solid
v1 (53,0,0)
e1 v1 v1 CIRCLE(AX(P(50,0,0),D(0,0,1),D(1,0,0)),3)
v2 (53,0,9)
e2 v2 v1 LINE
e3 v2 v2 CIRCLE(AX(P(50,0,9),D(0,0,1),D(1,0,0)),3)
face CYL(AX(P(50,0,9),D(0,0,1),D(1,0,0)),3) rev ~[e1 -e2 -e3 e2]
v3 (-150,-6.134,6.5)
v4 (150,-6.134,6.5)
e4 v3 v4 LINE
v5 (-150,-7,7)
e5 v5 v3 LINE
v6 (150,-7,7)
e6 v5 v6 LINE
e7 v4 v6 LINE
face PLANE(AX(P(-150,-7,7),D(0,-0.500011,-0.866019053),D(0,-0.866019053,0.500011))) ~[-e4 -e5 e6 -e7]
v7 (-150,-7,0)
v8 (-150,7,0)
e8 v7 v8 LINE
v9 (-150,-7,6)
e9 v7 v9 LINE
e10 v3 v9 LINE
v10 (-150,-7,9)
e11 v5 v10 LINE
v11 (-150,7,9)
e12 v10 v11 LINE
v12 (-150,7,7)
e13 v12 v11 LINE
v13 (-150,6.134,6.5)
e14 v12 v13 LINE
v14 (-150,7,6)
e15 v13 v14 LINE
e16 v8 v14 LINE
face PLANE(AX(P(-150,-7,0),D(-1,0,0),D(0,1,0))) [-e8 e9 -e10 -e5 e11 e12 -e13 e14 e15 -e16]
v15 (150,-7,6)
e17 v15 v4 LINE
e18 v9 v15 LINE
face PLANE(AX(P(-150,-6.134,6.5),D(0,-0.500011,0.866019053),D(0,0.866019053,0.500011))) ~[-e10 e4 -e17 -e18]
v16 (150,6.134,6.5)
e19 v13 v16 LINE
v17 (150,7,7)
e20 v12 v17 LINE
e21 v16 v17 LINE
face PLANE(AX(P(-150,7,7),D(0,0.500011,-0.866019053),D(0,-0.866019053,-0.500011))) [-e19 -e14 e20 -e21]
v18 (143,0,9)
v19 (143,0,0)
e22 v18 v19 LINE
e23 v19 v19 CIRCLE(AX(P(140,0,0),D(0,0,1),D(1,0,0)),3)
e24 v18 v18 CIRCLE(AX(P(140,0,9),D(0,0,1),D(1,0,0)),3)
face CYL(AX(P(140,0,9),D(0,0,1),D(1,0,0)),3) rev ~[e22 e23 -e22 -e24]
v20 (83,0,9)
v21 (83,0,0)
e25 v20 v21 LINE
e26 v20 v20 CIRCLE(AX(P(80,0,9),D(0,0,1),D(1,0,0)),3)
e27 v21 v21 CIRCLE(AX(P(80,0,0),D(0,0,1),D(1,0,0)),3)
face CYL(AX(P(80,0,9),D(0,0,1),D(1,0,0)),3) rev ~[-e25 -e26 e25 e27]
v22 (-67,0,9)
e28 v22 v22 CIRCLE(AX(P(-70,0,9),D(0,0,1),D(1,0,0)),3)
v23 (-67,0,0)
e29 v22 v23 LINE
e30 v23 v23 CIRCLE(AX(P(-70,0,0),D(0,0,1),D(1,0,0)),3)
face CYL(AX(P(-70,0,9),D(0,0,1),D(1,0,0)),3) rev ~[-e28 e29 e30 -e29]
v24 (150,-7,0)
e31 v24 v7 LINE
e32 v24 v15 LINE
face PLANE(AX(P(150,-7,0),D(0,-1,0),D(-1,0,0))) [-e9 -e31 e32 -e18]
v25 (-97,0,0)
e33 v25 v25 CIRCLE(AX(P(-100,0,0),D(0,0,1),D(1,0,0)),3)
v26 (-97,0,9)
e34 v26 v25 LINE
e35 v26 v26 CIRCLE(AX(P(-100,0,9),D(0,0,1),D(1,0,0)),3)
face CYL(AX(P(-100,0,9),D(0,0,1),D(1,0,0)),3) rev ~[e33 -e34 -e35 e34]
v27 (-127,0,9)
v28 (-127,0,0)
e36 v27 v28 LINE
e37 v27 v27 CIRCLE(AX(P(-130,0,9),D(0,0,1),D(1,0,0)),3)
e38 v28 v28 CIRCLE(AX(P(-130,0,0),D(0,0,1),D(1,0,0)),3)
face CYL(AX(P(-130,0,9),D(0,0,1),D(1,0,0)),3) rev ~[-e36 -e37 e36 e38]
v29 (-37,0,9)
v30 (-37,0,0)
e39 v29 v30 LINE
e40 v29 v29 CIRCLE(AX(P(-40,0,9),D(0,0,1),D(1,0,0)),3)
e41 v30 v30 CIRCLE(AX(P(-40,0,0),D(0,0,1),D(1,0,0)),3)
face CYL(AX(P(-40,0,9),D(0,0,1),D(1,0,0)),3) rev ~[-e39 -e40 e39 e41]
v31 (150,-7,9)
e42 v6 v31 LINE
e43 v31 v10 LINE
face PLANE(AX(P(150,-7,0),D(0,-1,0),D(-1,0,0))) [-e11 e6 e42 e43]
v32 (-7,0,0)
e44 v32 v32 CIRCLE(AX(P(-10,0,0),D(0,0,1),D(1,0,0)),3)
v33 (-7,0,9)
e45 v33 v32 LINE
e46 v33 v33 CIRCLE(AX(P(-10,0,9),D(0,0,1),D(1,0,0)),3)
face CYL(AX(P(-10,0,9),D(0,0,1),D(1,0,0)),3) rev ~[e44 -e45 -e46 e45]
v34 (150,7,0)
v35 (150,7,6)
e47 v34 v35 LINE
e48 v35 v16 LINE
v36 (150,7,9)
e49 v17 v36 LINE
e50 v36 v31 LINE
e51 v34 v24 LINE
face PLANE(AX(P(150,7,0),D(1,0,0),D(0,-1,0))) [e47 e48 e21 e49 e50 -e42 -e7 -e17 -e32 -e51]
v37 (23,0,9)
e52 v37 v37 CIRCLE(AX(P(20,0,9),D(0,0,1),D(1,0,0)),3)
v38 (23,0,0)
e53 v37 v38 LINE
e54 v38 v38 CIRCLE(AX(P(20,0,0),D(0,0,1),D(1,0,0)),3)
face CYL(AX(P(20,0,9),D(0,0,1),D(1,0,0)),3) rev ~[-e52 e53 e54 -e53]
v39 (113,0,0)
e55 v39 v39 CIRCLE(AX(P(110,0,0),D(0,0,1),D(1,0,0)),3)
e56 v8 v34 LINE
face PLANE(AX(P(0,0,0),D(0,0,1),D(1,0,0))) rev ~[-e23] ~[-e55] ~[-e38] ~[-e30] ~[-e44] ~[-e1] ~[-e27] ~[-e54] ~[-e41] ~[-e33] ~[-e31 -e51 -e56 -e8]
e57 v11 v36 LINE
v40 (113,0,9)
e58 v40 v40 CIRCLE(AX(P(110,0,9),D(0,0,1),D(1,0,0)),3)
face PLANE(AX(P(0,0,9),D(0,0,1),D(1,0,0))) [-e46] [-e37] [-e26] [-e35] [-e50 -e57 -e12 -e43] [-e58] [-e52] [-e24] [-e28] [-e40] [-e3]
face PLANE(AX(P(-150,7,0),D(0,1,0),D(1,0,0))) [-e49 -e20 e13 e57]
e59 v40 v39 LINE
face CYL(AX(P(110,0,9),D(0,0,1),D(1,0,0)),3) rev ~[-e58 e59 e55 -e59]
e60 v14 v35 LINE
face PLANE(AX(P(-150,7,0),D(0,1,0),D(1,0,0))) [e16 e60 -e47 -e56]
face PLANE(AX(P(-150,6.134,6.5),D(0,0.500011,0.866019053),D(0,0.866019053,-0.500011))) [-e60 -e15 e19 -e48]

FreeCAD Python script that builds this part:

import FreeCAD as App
import Part
import Sketcher

doc = App.newDocument("Part")
body = doc.addObject("PartDesign::Body", "Body")

sketch1 = body.newObject("Sketcher::SketchObject", "Sketch")
sketch1.AttachmentSupport = (doc.getObject("XY_Plane"), [""])
sketch1.MapMode = "FlatFace"
sketch1.addGeometry([
    Part.LineSegment(App.Vector(-150, -7, 0), App.Vector(150, -7, 0)),
    Part.LineSegment(App.Vector(150, -7, 0), App.Vector(150, 7, 0)),
    Part.LineSegment(App.Vector(150, 7, 0), App.Vector(-150, 7, 0)),
    Part.LineSegment(App.Vector(-150, 7, 0), App.Vector(-150, -7, 0)),
], False)
sketch1.addConstraint([
    Sketcher.Constraint("Coincident", 0, 2, 1, 1),
    Sketcher.Constraint("Coincident", 1, 2, 2, 1),
    Sketcher.Constraint("Coincident", 2, 2, 3, 1),
    Sketcher.Constraint("Coincident", 3, 2, 0, 1),
    Sketcher.Constraint("Horizontal", 0),
    Sketcher.Constraint("Vertical", 1),
    Sketcher.Constraint("Horizontal", 2),
    Sketcher.Constraint("Vertical", 3),
    Sketcher.Constraint("Symmetric", 0, 2, 2, 2, -1, 1),
    Sketcher.Constraint("DistanceX", 0, 1, 0, 2, 300.0),
    Sketcher.Constraint("DistanceY", 1, 1, 1, 2, 14.0),
])
pad1 = body.newObject("PartDesign::Pad", "Pad")
pad1.Profile = sketch1
pad1.Length = 9

sketch2 = body.newObject("Sketcher::SketchObject", "Sketch001")
sketch2.AttachmentSupport = (doc.getObject("YZ_Plane"), [""])
sketch2.MapMode = "FlatFace"
sketch2.AttachmentOffset = App.Placement(App.Vector(0, 0, -150), App.Rotation())
sketch2.addGeometry([
    Part.LineSegment(App.Vector(7, 7, 0), App.Vector(7, 6, 0)),
    Part.LineSegment(App.Vector(7, 6, 0), App.Vector(6.134, 6.5, 0)),
    Part.LineSegment(App.Vector(6.134, 6.5, 0), App.Vector(7, 7, 0)),
], False)
sketch2.addConstraint([
    Sketcher.Constraint("Coincident", 0, 2, 1, 1),
    Sketcher.Constraint("Coincident", 1, 2, 2, 1),
    Sketcher.Constraint("Coincident", 2, 2, 0, 1),
    Sketcher.Constraint("Vertical", 0),
    Sketcher.Constraint("Equal", 1, 2),
    Sketcher.Constraint("DistanceY", 0, 2, 0, 1, 1.0),
    Sketcher.Constraint("Distance", 1, 1.0),
    Sketcher.Constraint("DistanceX", -1, 1, 0, 2, 7.0),
    Sketcher.Constraint("DistanceY", -1, 1, 0, 2, 6.0),
])
pocket1 = body.newObject("PartDesign::Pocket", "Pocket")
pocket1.Profile = sketch2
pocket1.Type = "ThroughAll"
pocket1.Reversed = True
doc.recompute()

mirrored = body.newObject("PartDesign::Mirrored", "Mirrored")
mirrored.Originals = [pocket1]
mirrored.MirrorPlane = (doc.getObject("XZ_Plane"), [""])
body.Tip = mirrored

sketch3 = body.newObject("Sketcher::SketchObject", "Sketch002")
sketch3.AttachmentSupport = (doc.getObject("XY_Plane"), [""])
sketch3.MapMode = "FlatFace"
sketch3.AttachmentOffset = App.Placement(App.Vector(0, 0, 9), App.Rotation())
sketch3.addGeometry(Part.Circle(App.Vector(-130, 0, 0), App.Vector(0, 0, 1), 3), False)
sketch3.addConstraint([
    Sketcher.Constraint("PointOnObject", 0, 3, -1),
    Sketcher.Constraint("Diameter", 0, 6.0),
    Sketcher.Constraint("DistanceX", 0, 3, -1, 1, 130.0),
])
pocket2 = body.newObject("PartDesign::Pocket", "Pocket001")
pocket2.Profile = sketch3
pocket2.Type = "ThroughAll"
doc.recompute()

linearpattern = body.newObject("PartDesign::LinearPattern", "LinearPattern")
linearpattern.Originals = [pocket2]
linearpattern.Direction = (doc.getObject("X_Axis"), [""])
linearpattern.Mode = "offset"
linearpattern.Offset = 30
linearpattern.Occurrences = 10
body.Tip = linearpattern

doc.recompute()
